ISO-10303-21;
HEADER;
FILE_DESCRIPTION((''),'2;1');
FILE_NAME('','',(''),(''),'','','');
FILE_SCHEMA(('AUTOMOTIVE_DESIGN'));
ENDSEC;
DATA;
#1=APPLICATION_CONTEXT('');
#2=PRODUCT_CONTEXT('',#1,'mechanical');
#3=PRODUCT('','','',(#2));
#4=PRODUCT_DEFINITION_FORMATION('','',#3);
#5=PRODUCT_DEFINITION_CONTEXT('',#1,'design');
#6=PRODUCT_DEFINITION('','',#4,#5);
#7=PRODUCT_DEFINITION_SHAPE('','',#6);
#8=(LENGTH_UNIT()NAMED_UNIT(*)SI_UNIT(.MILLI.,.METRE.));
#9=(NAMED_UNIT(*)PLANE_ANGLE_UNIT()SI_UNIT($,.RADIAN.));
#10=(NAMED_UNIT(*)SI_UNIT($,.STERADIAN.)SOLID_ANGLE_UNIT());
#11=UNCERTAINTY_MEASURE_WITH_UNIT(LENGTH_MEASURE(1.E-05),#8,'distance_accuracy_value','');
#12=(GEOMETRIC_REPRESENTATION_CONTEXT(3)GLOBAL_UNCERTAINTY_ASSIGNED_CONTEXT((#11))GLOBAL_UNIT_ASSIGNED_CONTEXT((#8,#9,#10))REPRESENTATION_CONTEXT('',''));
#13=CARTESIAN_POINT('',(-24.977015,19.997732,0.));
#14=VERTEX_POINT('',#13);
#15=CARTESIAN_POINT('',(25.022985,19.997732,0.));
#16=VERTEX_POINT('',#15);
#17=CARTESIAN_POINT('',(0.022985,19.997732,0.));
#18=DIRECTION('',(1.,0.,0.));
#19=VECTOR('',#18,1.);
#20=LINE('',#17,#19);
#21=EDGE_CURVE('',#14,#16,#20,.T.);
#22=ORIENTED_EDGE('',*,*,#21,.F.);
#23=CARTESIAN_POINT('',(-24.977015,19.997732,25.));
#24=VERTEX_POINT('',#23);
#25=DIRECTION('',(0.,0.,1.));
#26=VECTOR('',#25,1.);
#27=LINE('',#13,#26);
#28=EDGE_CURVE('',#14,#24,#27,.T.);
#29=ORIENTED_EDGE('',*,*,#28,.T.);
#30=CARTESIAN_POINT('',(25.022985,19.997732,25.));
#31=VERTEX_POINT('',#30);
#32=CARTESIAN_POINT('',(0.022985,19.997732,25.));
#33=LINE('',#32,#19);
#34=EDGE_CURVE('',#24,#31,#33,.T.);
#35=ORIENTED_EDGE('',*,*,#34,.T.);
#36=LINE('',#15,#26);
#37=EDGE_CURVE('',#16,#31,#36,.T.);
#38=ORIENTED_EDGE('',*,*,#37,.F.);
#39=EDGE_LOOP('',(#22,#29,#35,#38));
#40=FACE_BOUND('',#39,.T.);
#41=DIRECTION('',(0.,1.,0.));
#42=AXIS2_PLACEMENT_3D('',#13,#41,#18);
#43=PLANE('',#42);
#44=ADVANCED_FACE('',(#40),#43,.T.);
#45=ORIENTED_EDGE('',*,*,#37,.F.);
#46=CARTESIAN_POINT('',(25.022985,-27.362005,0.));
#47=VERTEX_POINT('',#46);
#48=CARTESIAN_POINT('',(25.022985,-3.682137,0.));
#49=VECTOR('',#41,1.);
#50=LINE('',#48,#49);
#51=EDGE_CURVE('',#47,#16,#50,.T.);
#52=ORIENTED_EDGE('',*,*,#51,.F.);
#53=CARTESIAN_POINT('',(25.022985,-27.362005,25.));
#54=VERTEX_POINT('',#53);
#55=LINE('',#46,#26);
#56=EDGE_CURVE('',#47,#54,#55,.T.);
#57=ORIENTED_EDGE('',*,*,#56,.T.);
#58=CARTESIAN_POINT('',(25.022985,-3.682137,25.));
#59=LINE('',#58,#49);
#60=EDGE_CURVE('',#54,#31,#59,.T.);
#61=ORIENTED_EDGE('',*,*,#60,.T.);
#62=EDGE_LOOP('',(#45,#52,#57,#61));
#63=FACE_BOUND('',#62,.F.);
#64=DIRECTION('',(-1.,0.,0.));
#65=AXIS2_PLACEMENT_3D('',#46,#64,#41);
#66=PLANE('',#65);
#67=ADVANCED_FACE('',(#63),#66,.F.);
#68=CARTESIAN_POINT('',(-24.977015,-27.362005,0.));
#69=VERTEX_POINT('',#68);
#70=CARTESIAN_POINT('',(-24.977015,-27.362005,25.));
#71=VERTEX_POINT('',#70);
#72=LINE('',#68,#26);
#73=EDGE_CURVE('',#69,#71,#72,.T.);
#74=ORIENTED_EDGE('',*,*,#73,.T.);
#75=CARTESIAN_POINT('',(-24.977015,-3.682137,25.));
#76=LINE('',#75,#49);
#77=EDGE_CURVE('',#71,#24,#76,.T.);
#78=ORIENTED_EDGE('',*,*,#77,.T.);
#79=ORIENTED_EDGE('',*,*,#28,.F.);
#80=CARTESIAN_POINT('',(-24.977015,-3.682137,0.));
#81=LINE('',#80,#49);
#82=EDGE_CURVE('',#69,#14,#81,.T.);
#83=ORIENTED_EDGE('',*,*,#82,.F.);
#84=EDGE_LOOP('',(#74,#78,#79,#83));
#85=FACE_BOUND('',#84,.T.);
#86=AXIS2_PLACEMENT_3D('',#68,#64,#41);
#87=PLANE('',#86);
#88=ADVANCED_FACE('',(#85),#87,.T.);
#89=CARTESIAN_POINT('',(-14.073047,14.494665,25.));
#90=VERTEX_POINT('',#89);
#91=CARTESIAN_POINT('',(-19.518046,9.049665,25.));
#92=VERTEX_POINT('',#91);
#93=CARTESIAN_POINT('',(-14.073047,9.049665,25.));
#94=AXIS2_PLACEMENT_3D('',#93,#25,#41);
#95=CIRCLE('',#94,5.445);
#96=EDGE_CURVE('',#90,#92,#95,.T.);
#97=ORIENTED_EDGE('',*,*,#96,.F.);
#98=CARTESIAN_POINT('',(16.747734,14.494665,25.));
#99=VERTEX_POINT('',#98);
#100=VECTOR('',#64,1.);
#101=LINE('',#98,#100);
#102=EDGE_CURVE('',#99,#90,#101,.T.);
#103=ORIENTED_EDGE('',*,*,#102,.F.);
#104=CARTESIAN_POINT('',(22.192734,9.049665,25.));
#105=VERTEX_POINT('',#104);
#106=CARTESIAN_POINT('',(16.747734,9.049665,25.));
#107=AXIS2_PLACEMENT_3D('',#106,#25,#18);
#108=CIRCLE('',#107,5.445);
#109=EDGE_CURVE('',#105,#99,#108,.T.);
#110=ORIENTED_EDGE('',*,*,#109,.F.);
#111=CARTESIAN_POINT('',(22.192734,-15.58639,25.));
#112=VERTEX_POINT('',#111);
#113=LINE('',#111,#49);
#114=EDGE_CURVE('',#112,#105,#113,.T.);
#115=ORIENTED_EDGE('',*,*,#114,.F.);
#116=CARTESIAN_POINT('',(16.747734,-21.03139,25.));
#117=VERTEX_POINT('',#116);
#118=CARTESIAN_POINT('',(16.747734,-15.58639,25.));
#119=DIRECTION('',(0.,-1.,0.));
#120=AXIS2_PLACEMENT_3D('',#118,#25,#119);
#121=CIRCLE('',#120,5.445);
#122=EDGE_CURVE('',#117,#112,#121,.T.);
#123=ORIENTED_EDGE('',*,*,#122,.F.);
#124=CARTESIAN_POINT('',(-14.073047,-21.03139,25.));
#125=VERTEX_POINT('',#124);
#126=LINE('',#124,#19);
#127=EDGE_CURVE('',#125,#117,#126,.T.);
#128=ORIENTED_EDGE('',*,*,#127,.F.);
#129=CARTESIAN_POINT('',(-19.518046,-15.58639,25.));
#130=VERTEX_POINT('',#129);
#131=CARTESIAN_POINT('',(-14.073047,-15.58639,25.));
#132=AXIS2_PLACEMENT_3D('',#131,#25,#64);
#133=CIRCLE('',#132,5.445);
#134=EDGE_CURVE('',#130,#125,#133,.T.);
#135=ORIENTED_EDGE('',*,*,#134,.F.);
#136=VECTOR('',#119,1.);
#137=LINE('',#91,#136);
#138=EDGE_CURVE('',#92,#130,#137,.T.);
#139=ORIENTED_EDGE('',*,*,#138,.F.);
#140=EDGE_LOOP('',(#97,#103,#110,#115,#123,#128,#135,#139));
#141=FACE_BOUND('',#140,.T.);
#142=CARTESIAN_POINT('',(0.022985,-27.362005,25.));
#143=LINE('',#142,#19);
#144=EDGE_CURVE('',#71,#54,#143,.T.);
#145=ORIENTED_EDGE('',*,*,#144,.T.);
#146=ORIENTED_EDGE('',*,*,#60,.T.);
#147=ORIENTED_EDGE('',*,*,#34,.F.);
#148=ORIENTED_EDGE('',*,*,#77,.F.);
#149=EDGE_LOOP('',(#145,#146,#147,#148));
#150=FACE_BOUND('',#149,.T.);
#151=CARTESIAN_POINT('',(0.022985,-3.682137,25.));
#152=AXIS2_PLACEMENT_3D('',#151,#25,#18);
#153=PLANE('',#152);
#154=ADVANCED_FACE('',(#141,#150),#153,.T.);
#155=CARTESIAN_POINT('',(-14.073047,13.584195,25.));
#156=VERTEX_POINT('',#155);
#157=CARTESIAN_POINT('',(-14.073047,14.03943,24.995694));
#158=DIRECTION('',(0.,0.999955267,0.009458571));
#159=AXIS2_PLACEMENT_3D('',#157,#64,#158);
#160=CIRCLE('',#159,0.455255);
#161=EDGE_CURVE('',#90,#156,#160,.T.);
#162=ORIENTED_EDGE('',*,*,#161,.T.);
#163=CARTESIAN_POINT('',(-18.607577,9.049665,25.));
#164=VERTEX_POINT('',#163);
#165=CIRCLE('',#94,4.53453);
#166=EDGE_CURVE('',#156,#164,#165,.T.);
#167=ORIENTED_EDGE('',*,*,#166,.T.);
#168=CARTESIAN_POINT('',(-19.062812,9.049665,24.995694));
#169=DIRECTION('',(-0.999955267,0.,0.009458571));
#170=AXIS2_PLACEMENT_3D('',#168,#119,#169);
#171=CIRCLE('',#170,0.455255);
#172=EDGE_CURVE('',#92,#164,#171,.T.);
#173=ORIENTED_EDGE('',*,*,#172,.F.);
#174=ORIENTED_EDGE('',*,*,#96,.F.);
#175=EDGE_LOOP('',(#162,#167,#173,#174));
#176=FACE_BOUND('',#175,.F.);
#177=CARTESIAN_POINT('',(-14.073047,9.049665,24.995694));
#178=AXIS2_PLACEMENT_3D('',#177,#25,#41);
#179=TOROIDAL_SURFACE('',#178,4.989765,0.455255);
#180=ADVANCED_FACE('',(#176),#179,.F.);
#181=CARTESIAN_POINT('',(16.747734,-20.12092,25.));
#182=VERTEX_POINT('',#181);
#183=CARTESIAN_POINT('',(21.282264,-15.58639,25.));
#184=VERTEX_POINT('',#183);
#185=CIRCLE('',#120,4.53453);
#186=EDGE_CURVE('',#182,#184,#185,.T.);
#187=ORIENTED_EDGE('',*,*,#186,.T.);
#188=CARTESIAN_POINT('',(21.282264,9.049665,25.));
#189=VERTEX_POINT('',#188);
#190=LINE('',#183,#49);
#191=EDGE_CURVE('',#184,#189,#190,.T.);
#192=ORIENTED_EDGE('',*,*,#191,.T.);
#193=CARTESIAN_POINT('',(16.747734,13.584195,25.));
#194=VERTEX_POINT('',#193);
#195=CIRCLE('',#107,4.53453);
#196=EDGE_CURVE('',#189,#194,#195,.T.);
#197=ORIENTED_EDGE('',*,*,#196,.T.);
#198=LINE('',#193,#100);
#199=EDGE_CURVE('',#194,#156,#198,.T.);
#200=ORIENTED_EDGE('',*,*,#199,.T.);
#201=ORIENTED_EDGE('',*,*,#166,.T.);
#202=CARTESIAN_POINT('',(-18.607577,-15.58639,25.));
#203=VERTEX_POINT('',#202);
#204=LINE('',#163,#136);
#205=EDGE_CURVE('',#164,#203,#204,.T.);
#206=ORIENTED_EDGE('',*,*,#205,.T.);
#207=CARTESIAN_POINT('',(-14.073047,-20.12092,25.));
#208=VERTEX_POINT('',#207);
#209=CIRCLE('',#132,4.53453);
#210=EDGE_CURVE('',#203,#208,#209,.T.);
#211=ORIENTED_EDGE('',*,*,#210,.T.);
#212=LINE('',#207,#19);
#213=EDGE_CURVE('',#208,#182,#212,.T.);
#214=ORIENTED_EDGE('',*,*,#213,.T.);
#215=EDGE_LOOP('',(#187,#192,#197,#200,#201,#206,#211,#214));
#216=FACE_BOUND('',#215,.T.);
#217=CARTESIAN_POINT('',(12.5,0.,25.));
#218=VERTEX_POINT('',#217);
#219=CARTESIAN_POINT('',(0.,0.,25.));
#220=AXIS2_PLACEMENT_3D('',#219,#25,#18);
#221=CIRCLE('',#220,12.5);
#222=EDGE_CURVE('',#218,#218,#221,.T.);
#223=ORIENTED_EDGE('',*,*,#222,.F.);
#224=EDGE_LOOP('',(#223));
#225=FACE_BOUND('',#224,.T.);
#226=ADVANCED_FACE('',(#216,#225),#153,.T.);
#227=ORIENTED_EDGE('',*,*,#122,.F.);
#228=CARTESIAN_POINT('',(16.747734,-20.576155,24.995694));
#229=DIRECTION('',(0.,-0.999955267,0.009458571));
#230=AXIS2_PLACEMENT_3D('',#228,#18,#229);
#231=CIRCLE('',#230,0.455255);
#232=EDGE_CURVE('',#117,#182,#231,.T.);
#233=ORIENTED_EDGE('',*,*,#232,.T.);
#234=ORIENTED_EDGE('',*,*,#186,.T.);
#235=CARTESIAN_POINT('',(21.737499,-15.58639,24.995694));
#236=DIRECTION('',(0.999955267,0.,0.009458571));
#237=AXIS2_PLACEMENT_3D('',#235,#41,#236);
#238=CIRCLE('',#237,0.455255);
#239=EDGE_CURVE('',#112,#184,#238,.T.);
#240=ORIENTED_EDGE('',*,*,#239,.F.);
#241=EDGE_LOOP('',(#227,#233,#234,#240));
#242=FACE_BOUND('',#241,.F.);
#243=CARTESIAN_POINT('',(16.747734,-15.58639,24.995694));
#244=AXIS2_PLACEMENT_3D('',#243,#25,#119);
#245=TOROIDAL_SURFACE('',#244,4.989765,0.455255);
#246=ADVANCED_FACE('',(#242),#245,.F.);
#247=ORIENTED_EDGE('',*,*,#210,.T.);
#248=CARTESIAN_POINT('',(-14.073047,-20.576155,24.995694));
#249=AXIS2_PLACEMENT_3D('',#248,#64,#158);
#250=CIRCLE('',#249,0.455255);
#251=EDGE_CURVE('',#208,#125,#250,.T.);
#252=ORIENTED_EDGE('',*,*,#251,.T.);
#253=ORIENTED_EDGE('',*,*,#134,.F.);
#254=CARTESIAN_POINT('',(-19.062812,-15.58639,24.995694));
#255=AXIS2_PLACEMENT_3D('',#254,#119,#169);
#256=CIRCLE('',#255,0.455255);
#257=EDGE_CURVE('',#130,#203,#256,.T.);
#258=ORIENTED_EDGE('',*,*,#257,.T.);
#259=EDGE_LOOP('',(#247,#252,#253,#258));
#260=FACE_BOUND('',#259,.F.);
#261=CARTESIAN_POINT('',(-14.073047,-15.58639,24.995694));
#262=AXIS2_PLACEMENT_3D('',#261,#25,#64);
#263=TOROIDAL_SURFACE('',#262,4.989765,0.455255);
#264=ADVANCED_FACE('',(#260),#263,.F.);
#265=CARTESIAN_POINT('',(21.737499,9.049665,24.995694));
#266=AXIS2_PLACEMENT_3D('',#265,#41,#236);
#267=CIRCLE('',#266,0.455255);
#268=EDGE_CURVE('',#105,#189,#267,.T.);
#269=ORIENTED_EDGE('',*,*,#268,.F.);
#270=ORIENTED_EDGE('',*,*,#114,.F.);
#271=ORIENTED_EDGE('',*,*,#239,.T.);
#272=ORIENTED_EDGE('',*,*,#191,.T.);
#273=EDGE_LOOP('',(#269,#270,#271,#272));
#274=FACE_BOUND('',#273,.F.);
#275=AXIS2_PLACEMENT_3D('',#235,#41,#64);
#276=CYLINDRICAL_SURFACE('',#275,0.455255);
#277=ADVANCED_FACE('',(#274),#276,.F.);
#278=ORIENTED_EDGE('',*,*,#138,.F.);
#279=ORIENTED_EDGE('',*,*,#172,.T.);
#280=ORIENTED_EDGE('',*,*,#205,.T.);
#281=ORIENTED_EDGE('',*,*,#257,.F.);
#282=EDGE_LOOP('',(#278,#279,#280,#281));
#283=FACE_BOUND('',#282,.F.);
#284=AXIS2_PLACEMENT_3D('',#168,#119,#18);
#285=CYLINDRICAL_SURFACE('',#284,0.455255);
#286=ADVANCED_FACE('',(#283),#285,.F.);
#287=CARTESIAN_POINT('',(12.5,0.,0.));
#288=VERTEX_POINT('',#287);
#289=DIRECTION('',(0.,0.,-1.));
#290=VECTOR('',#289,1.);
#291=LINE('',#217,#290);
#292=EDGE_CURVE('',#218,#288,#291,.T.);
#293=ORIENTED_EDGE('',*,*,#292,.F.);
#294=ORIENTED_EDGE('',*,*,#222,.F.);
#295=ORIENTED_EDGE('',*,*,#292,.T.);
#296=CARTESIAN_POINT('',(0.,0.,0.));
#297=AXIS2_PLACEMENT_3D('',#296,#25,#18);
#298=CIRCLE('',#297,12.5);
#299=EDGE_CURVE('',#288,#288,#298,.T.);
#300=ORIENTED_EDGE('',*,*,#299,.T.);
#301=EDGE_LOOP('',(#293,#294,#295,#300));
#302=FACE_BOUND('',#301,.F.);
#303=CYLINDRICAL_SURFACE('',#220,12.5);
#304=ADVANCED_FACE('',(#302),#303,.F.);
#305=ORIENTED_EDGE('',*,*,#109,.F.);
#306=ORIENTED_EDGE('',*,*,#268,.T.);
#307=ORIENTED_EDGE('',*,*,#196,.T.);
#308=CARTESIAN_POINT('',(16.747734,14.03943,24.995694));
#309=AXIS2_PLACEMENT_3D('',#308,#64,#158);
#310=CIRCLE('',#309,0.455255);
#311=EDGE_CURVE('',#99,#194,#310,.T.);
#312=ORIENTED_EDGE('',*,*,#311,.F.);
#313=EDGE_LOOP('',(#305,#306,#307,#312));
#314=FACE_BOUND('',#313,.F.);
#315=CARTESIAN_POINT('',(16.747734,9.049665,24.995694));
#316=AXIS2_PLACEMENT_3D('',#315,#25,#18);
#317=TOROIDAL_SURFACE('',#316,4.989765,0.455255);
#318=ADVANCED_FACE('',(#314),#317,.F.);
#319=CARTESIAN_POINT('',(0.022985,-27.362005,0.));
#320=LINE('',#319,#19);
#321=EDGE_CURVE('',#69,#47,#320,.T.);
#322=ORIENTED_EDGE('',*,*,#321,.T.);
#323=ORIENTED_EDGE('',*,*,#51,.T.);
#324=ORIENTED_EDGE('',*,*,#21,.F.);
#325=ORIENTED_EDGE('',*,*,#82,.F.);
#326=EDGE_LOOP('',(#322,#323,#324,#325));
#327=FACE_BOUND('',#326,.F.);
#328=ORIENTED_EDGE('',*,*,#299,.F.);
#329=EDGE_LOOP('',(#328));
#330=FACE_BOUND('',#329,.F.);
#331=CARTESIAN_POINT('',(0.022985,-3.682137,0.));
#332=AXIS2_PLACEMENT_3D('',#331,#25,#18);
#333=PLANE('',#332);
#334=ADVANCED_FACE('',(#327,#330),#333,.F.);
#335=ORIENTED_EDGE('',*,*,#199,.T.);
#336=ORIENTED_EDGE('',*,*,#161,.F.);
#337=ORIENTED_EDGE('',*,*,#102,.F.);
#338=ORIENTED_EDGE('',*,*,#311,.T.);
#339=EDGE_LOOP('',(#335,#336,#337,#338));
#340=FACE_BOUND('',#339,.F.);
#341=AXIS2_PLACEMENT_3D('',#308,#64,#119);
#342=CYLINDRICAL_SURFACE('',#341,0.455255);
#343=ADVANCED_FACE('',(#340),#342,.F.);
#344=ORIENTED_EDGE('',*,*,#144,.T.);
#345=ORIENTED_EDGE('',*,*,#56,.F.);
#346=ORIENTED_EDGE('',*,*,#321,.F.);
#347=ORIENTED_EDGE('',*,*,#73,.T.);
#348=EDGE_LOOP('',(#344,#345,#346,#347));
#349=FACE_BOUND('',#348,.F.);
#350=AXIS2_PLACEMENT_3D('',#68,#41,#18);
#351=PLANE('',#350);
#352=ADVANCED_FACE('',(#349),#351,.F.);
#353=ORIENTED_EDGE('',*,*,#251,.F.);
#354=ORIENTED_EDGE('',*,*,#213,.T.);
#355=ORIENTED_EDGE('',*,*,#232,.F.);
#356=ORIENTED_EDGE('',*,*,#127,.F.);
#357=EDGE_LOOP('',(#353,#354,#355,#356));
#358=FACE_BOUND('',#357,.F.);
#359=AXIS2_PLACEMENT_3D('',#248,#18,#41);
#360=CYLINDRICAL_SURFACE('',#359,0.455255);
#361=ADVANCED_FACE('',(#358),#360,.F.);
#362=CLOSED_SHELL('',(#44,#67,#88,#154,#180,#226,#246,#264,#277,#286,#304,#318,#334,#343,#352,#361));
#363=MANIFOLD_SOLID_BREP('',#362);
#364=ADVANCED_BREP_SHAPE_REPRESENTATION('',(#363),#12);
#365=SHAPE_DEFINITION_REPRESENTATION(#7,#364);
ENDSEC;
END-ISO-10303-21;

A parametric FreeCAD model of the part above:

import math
import FreeCAD as App
import Part
import Sketcher

V = App.Vector


def add_polygon(sketch, points):
    """Adds a closed chain of lines whose ends are joined by coincident constraints."""
    first, n = sketch.GeometryCount, len(points)
    for a, b in zip(points, points[1:] + points[:1]):
        sketch.addGeometry(Part.LineSegment(App.Vector(*a, 0), App.Vector(*b, 0)), False)
    for i in range(n):
        sketch.addConstraint(Sketcher.Constraint("Coincident", first + i, 2, first + (i + 1) % n, 1))

doc = App.newDocument("Part")
body = doc.addObject("PartDesign::Body", "Body")

# Sketch on XY plane
sketch1 = doc.addObject("Sketcher::SketchObject", "Sketch")
body.addObject(sketch1)
sketch1.AttachmentSupport = (doc.XY_Plane, [""])
sketch1.MapMode = "FlatFace"
add_polygon(sketch1, [(-25, 20), (-25, -27), (25, -27), (25, 20)])  # lines 0-3
sketch1.addConstraint([
    Sketcher.Constraint("Vertical", 0),
    Sketcher.Constraint("Horizontal", 1),
    Sketcher.Constraint("Vertical", 2),
    Sketcher.Constraint("Horizontal", 3),
    Sketcher.Constraint("DistanceX", 1, 1, 1, 2, 50.0),
    Sketcher.Constraint("DistanceY", 0, 2, 0, 1, 47.359737),
    Sketcher.Constraint("DistanceY", -1, 1, 2, 2, 19.997732),
    Sketcher.Constraint("DistanceX", 0, 2, -1, 1, 24.977015),
])
pad1 = doc.addObject("PartDesign::Pad", "Pad")
body.addObject(pad1)
pad1.Profile = sketch1
pad1.Length = 25

# Sketch on XY plane
sketch2 = doc.addObject("Sketcher::SketchObject", "Sketch001")
body.addObject(sketch2)
sketch2.AttachmentSupport = (doc.XY_Plane, [""])
sketch2.MapMode = "FlatFace"
sketch2.AttachmentOffset = App.Placement(V(0, 0, 25), App.Rotation())
sketch2.addGeometry(Part.Circle(V(0, 0, 0), V(0, 0, 1), 12), False)
sketch2.addConstraint([
    Sketcher.Constraint("Coincident", 0, 3, -1, 1),
    Sketcher.Constraint("Diameter", 0, 25.0),
])
pocket1 = doc.addObject("PartDesign::Pocket", "Pocket")
body.addObject(pocket1)
pocket1.Profile = sketch2
pocket1.Type = "ThroughAll"

# Sketch on YZ plane
sketch3 = doc.addObject("Sketcher::SketchObject", "Sketch002")
body.addObject(sketch3)
sketch3.AttachmentSupport = (doc.YZ_Plane, [""])
sketch3.MapMode = "FlatFace"
sketch3.addGeometry(Part.Circle(V(-20.58, 25, 0), V(0, 0, 1), 0.46), False)
sketch3.addConstraint([
    Sketcher.Constraint("Diameter", 0, 0.91051),
    Sketcher.Constraint("DistanceX", 0, 3, -1, 1, 20.576155),
    Sketcher.Constraint("DistanceY", -1, 1, 0, 3, 24.995694),
])

# Sketch on XY plane
sketch4 = doc.addObject("Sketcher::SketchObject", "Sketch003")
body.addObject(sketch4)
sketch4.AttachmentSupport = (doc.XY_Plane, [""])
sketch4.MapMode = "FlatFace"
sketch4.AttachmentOffset = App.Placement(V(0, 0, 25), App.Rotation())
sketch4.addGeometry([
    Part.LineSegment(V(-14, -21, 0), V(17, -21, 0)),  # 0
    Part.ArcOfCircle(Part.Circle(V(17, -16, 0), V(0, 0, 1), 5), math.radians(-90), math.radians(0)),  # 1
    Part.LineSegment(V(22, -16, 0), V(22, 9, 0)),  # 2
    Part.ArcOfCircle(Part.Circle(V(17, 9, 0), V(0, 0, 1), 5), math.radians(0), math.radians(90)),  # 3
    Part.LineSegment(V(17, 14, 0), V(-14, 14, 0)),  # 4
    Part.ArcOfCircle(Part.Circle(V(-14, 9, 0), V(0, 0, 1), 5), math.radians(90), math.radians(180)),  # 5
    Part.LineSegment(V(-19, 9, 0), V(-19, -16, 0)),  # 6
    Part.ArcOfCircle(Part.Circle(V(-14, -16, 0), V(0, 0, 1), 5), math.radians(180), math.radians(270)),  # 7
], False)
sketch4.addConstraint([
    Sketcher.Constraint("Tangent", 0, 2, 1, 1),
    Sketcher.Constraint("Tangent", 1, 2, 2, 1),
    Sketcher.Constraint("Tangent", 2, 2, 3, 1),
    Sketcher.Constraint("Tangent", 3, 2, 4, 1),
    Sketcher.Constraint("Tangent", 4, 2, 5, 1),
    Sketcher.Constraint("Tangent", 5, 2, 6, 1),
    Sketcher.Constraint("Tangent", 6, 2, 7, 1),
    Sketcher.Constraint("Tangent", 7, 2, 0, 1),
    Sketcher.Constraint("Horizontal", 0),
    Sketcher.Constraint("Vertical", 2),
    Sketcher.Constraint("Horizontal", 4),
    Sketcher.Constraint("Vertical", 6),
    Sketcher.Constraint("Equal", 1, 3),
    Sketcher.Constraint("Equal", 3, 5),
    Sketcher.Constraint("Equal", 5, 7),
    Sketcher.Constraint("Radius", 1, 5.0),
    Sketcher.Constraint("DistanceX", 0, 1, 0, 2, 30.820781),
    Sketcher.Constraint("DistanceY", 2, 1, 2, 2, 24.636055),
    Sketcher.Constraint("DistanceY", 1, 3, -1, 1, 15.58639),
    Sketcher.Constraint("DistanceX", -1, 1, 1, 3, 16.747734),
])
doc.recompute()

subtractivepipe = doc.addObject("PartDesign::SubtractivePipe", "SubtractivePipe")
body.addObject(subtractivepipe)
subtractivepipe.Profile = sketch3
subtractivepipe.Spine = (sketch4, ["Edge1", "Edge2", "Edge3", "Edge4", "Edge5", "Edge6", "Edge7", "Edge8"])

doc.recompute()
